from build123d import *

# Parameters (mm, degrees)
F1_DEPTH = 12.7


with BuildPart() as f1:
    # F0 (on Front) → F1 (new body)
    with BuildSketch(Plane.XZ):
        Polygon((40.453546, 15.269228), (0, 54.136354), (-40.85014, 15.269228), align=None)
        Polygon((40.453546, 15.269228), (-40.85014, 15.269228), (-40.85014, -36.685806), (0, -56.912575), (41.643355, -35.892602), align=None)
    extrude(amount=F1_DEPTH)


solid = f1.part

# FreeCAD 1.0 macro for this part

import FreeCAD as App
import Part
import Sketcher

V = App.Vector
Q = App.Units.Quantity

doc = App.newDocument("Part")
body = doc.addObject("PartDesign::Body", "Body")

sketch1 = body.newObject("Sketcher::SketchObject", "Sketch")
sketch1.AttachmentSupport = (doc.getObject("XZ_Plane"), [""])
sketch1.MapMode = "FlatFace"
sketch1.addGeometry(Part.LineSegment(V(40, 15, 0), V(0, 54, 0)), False)
sketch1.addGeometry(Part.LineSegment(V(0, 54, 0), V(-41, 15, 0)), False)
sketch1.addGeometry(Part.LineSegment(V(-41, 15, 0), V(-41, -37, 0)), False)
sketch1.addGeometry(Part.LineSegment(V(-41, -37, 0), V(0, -57, 0)), False)
sketch1.addGeometry(Part.LineSegment(V(0, -57, 0), V(42, -36, 0)), False)
sketch1.addGeometry(Part.LineSegment(V(42, -36, 0), V(40, 15, 0)), False)
sketch1.addConstraint(Sketcher.Constraint("Coincident", 0, 2, 1, 1))
sketch1.addConstraint(Sketcher.Constraint("Coincident", 1, 2, 2, 1))
sketch1.addConstraint(Sketcher.Constraint("Coincident", 2, 2, 3, 1))
sketch1.addConstraint(Sketcher.Constraint("Coincident", 3, 2, 4, 1))
sketch1.addConstraint(Sketcher.Constraint("Coincident", 4, 2, 5, 1))
sketch1.addConstraint(Sketcher.Constraint("Coincident", 5, 2, 0, 1))
sketch1.addConstraint(Sketcher.Constraint("Vertical", 2))
sketch1.addConstraint(Sketcher.Constraint("PointOnObject", 0, 2, -2))
sketch1.addConstraint(Sketcher.Constraint("PointOnObject", 3, 2, -2))
sketch1.addConstraint(Sketcher.Constraint("Horizontal", 1, 2, 5, 2))
sketch1.addConstraint(Sketcher.Constraint("Distance", 0, Q("56.099402 mm")))
sketch1.addConstraint(Sketcher.Constraint("DistanceY", 4, 2, -1, 1, Q("35.892602 mm")))
sketch1.addConstraint(Sketcher.Constraint("DistanceY", 2, 2, 2, 1, Q("51.955034 mm")))
sketch1.addConstraint(Sketcher.Constraint("DistanceX", 1, 2, -1, 1, Q("40.85014 mm")))
sketch1.addConstraint(Sketcher.Constraint("DistanceY", 2, 2, 0, 2, Q("90.82216 mm")))
sketch1.addConstraint(Sketcher.Constraint("DistanceY", 3, 2, 2, 2, Q("20.226769 mm")))
sketch1.addConstraint(Sketcher.Constraint("DistanceY", 4, 2, 1, 2, Q("51.16183 mm")))
sketch1.addConstraint(Sketcher.Constraint("DistanceX", 5, 2, 4, 2, Q("1.189809 mm")))
pad1 = body.newObject("PartDesign::Pad", "Pad")
pad1.Profile = sketch1
pad1.Length = Q("0.5 in")

doc.recompute()
